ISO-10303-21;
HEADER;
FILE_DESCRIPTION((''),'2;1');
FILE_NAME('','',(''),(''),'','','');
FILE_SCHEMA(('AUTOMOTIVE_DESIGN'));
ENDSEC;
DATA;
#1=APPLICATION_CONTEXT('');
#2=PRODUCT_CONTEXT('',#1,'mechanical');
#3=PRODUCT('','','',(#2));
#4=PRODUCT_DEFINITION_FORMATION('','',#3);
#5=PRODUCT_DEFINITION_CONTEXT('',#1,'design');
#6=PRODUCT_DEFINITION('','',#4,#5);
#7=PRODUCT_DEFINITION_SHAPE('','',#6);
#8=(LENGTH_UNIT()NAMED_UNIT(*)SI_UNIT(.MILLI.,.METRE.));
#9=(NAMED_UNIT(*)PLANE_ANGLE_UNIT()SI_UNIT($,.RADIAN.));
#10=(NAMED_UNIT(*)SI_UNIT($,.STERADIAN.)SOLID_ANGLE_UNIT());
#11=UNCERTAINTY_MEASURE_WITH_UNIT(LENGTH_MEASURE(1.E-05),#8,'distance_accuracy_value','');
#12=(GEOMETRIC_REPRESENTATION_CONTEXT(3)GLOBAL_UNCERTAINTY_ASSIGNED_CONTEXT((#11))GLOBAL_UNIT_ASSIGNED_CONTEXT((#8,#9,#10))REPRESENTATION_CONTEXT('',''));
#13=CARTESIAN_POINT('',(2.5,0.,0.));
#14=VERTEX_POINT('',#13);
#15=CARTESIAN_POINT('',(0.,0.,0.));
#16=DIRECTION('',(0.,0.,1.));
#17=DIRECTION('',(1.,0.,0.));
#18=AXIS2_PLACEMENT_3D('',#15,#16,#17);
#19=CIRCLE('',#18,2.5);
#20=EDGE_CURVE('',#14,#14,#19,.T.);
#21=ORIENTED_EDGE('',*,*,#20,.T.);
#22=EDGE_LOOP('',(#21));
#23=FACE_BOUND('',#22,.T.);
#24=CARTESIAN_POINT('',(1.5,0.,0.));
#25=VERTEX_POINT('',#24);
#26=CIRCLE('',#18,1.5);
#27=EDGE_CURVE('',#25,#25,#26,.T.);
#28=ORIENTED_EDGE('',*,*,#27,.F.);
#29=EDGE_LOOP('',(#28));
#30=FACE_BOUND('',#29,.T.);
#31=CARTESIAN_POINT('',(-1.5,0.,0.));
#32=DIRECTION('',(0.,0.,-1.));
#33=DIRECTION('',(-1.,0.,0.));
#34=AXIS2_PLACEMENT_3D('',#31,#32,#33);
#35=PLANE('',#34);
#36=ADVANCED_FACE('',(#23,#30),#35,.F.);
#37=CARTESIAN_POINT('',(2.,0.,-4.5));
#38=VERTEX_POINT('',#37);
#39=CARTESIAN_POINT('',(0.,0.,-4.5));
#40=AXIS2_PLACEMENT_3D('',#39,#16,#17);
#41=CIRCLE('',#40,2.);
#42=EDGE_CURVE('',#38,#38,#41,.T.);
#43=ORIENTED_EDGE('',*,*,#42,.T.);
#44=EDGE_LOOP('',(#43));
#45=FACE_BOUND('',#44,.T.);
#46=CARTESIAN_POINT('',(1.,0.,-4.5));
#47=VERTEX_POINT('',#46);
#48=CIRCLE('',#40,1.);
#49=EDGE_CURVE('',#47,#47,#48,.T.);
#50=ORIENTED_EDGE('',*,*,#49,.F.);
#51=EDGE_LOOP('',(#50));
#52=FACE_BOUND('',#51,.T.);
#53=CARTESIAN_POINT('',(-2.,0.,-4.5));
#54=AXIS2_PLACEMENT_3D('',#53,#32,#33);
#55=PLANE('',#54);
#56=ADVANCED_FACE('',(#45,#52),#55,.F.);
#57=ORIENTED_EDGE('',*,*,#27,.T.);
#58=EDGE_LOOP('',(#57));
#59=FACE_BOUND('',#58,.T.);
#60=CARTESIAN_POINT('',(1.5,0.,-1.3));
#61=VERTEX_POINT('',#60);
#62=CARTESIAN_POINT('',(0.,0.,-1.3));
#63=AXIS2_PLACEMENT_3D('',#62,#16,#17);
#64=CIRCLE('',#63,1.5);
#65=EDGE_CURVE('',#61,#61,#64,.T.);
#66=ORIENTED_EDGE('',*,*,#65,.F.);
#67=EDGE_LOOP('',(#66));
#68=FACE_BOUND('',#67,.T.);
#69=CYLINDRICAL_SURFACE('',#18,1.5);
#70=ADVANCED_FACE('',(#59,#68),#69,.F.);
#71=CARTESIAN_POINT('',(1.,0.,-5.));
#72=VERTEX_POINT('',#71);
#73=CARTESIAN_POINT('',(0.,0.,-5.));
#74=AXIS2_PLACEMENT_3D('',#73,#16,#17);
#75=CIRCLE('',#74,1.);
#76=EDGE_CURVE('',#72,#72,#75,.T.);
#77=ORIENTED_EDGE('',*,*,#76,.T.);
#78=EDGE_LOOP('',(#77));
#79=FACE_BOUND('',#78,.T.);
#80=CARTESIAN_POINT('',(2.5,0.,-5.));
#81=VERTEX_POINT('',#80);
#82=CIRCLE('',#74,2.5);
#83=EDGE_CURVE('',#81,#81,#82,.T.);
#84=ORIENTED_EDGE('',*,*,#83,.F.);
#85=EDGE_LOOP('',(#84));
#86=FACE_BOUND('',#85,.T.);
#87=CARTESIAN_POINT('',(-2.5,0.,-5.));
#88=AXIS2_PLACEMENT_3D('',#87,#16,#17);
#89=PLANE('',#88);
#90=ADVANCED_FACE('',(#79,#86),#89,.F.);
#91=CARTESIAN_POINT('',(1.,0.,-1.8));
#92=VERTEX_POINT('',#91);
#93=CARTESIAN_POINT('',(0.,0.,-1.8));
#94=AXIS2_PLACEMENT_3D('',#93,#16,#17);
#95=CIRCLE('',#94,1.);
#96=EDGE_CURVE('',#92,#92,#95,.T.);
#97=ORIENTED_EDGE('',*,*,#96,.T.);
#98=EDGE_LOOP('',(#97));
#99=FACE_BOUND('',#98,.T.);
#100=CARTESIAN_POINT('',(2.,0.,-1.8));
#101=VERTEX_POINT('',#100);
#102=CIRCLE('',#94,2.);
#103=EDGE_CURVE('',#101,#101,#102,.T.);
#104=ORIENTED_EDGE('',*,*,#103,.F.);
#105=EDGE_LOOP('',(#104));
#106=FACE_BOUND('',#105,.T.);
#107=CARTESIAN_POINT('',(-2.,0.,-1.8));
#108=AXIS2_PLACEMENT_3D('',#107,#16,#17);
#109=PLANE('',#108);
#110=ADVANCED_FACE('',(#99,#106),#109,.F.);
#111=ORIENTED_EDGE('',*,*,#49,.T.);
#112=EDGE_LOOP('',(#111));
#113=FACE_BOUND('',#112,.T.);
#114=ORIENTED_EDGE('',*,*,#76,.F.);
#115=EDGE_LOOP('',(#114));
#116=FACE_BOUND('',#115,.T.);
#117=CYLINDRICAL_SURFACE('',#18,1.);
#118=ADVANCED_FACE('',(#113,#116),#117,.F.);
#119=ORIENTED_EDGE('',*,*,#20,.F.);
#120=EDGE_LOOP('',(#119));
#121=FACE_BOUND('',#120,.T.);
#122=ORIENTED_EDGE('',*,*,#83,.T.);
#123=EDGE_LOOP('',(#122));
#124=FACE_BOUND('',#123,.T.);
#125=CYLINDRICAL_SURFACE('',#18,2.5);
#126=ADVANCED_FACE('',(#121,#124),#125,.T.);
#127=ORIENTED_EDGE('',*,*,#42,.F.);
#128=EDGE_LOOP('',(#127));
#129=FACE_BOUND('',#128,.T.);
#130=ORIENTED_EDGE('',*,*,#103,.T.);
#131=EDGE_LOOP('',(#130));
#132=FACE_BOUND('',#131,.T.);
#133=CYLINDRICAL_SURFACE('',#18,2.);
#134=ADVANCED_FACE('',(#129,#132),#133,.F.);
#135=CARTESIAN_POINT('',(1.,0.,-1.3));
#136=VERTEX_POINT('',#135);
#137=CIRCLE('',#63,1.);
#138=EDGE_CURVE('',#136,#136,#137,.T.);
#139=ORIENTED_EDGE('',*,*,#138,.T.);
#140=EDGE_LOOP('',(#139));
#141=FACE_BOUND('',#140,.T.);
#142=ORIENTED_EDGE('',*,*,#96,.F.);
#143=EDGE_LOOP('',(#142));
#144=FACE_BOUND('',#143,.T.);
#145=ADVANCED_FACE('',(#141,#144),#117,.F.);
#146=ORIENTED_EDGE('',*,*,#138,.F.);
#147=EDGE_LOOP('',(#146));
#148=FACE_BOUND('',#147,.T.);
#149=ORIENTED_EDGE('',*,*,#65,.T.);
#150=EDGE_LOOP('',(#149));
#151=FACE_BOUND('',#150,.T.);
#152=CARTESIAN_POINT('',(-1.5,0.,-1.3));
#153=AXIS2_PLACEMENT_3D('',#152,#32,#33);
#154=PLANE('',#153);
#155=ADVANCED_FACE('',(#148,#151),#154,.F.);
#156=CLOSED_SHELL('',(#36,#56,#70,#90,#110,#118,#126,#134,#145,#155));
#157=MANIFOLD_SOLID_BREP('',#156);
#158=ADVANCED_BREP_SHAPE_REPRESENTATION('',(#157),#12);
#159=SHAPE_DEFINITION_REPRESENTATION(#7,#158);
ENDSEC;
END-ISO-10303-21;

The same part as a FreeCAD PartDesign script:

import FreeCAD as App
import Part
import Sketcher
from FreeCAD import Vector
Q = App.Units.Quantity

doc = App.newDocument("Part")
body = doc.addObject("PartDesign::Body", "Body")

# Sketch on XZ plane
sketch1 = body.newObject("Sketcher::SketchObject", "Sketch")
sketch1.AttachmentSupport = (doc.getObject("XZ_Plane"), [""])
sketch1.MapMode = "FlatFace"
sketch1.addGeometry([
    Part.LineSegment(Vector(-2.5, 0, 0), Vector(-1.5, 0, 0)),  # 0
    Part.LineSegment(Vector(-1.5, 0, 0), Vector(-1.5, -1.3, 0)),  # 1
    Part.LineSegment(Vector(-1.5, -1.3, 0), Vector(-1, -1.3, 0)),  # 2
    Part.LineSegment(Vector(-1, -1.3, 0), Vector(-1, -1.8, 0)),  # 3
    Part.LineSegment(Vector(-1, -1.8, 0), Vector(-2, -1.8, 0)),  # 4
    Part.LineSegment(Vector(-2, -1.8, 0), Vector(-2, -4.5, 0)),  # 5
    Part.LineSegment(Vector(-2, -4.5, 0), Vector(-1, -4.5, 0)),  # 6
    Part.LineSegment(Vector(-1, -4.5, 0), Vector(-1, -5, 0)),  # 7
    Part.LineSegment(Vector(-1, -5, 0), Vector(-2.5, -5, 0)),  # 8
    Part.LineSegment(Vector(-2.5, -5, 0), Vector(-2.5, 0, 0)),  # 9
], False)
sketch1.addConstraint([
    Sketcher.Constraint("Coincident", 0, 2, 1, 1),
    Sketcher.Constraint("Coincident", 1, 2, 2, 1),
    Sketcher.Constraint("Coincident", 2, 2, 3, 1),
    Sketcher.Constraint("Coincident", 3, 2, 4, 1),
    Sketcher.Constraint("Coincident", 4, 2, 5, 1),
    Sketcher.Constraint("Coincident", 5, 2, 6, 1),
    Sketcher.Constraint("Coincident", 6, 2, 7, 1),
    Sketcher.Constraint("Coincident", 7, 2, 8, 1),
    Sketcher.Constraint("Coincident", 8, 2, 9, 1),
    Sketcher.Constraint("Coincident", 9, 2, 0, 1),
    Sketcher.Constraint("Horizontal", 0),
    Sketcher.Constraint("Vertical", 1),
    Sketcher.Constraint("Horizontal", 2),
    Sketcher.Constraint("Vertical", 3),
    Sketcher.Constraint("Horizontal", 4),
    Sketcher.Constraint("Vertical", 5),
    Sketcher.Constraint("Horizontal", 6),
    Sketcher.Constraint("Vertical", 7),
    Sketcher.Constraint("Horizontal", 8),
    Sketcher.Constraint("Vertical", 9),
    Sketcher.Constraint("PointOnObject", 0, 2, -1),
    Sketcher.Constraint("Vertical", 3, 2, 6, 2),
    Sketcher.Constraint("Equal", 0, 4),
    Sketcher.Constraint("Equal", 2, 3),
    Sketcher.Constraint("Equal", 3, 7),
    Sketcher.Constraint("DistanceX", 0, 1, 0, 2, Q("1 mm")),
    Sketcher.Constraint("DistanceY", 9, 1, 9, 2, Q("5 mm")),
    Sketcher.Constraint("DistanceX", 2, 1, 2, 2, Q("0.5 mm")),
    Sketcher.Constraint("DistanceY", 1, 2, 1, 1, Q("1.3 mm")),
    Sketcher.Constraint("DistanceX", 2, 2, -1, 1, Q("1 mm")),
])
revolution = body.newObject("PartDesign::Revolution", "Revolution")
revolution.Profile = sketch1
revolution.ReferenceAxis = (sketch1, ["V_Axis"])
revolution.Angle = 360

doc.recompute()
